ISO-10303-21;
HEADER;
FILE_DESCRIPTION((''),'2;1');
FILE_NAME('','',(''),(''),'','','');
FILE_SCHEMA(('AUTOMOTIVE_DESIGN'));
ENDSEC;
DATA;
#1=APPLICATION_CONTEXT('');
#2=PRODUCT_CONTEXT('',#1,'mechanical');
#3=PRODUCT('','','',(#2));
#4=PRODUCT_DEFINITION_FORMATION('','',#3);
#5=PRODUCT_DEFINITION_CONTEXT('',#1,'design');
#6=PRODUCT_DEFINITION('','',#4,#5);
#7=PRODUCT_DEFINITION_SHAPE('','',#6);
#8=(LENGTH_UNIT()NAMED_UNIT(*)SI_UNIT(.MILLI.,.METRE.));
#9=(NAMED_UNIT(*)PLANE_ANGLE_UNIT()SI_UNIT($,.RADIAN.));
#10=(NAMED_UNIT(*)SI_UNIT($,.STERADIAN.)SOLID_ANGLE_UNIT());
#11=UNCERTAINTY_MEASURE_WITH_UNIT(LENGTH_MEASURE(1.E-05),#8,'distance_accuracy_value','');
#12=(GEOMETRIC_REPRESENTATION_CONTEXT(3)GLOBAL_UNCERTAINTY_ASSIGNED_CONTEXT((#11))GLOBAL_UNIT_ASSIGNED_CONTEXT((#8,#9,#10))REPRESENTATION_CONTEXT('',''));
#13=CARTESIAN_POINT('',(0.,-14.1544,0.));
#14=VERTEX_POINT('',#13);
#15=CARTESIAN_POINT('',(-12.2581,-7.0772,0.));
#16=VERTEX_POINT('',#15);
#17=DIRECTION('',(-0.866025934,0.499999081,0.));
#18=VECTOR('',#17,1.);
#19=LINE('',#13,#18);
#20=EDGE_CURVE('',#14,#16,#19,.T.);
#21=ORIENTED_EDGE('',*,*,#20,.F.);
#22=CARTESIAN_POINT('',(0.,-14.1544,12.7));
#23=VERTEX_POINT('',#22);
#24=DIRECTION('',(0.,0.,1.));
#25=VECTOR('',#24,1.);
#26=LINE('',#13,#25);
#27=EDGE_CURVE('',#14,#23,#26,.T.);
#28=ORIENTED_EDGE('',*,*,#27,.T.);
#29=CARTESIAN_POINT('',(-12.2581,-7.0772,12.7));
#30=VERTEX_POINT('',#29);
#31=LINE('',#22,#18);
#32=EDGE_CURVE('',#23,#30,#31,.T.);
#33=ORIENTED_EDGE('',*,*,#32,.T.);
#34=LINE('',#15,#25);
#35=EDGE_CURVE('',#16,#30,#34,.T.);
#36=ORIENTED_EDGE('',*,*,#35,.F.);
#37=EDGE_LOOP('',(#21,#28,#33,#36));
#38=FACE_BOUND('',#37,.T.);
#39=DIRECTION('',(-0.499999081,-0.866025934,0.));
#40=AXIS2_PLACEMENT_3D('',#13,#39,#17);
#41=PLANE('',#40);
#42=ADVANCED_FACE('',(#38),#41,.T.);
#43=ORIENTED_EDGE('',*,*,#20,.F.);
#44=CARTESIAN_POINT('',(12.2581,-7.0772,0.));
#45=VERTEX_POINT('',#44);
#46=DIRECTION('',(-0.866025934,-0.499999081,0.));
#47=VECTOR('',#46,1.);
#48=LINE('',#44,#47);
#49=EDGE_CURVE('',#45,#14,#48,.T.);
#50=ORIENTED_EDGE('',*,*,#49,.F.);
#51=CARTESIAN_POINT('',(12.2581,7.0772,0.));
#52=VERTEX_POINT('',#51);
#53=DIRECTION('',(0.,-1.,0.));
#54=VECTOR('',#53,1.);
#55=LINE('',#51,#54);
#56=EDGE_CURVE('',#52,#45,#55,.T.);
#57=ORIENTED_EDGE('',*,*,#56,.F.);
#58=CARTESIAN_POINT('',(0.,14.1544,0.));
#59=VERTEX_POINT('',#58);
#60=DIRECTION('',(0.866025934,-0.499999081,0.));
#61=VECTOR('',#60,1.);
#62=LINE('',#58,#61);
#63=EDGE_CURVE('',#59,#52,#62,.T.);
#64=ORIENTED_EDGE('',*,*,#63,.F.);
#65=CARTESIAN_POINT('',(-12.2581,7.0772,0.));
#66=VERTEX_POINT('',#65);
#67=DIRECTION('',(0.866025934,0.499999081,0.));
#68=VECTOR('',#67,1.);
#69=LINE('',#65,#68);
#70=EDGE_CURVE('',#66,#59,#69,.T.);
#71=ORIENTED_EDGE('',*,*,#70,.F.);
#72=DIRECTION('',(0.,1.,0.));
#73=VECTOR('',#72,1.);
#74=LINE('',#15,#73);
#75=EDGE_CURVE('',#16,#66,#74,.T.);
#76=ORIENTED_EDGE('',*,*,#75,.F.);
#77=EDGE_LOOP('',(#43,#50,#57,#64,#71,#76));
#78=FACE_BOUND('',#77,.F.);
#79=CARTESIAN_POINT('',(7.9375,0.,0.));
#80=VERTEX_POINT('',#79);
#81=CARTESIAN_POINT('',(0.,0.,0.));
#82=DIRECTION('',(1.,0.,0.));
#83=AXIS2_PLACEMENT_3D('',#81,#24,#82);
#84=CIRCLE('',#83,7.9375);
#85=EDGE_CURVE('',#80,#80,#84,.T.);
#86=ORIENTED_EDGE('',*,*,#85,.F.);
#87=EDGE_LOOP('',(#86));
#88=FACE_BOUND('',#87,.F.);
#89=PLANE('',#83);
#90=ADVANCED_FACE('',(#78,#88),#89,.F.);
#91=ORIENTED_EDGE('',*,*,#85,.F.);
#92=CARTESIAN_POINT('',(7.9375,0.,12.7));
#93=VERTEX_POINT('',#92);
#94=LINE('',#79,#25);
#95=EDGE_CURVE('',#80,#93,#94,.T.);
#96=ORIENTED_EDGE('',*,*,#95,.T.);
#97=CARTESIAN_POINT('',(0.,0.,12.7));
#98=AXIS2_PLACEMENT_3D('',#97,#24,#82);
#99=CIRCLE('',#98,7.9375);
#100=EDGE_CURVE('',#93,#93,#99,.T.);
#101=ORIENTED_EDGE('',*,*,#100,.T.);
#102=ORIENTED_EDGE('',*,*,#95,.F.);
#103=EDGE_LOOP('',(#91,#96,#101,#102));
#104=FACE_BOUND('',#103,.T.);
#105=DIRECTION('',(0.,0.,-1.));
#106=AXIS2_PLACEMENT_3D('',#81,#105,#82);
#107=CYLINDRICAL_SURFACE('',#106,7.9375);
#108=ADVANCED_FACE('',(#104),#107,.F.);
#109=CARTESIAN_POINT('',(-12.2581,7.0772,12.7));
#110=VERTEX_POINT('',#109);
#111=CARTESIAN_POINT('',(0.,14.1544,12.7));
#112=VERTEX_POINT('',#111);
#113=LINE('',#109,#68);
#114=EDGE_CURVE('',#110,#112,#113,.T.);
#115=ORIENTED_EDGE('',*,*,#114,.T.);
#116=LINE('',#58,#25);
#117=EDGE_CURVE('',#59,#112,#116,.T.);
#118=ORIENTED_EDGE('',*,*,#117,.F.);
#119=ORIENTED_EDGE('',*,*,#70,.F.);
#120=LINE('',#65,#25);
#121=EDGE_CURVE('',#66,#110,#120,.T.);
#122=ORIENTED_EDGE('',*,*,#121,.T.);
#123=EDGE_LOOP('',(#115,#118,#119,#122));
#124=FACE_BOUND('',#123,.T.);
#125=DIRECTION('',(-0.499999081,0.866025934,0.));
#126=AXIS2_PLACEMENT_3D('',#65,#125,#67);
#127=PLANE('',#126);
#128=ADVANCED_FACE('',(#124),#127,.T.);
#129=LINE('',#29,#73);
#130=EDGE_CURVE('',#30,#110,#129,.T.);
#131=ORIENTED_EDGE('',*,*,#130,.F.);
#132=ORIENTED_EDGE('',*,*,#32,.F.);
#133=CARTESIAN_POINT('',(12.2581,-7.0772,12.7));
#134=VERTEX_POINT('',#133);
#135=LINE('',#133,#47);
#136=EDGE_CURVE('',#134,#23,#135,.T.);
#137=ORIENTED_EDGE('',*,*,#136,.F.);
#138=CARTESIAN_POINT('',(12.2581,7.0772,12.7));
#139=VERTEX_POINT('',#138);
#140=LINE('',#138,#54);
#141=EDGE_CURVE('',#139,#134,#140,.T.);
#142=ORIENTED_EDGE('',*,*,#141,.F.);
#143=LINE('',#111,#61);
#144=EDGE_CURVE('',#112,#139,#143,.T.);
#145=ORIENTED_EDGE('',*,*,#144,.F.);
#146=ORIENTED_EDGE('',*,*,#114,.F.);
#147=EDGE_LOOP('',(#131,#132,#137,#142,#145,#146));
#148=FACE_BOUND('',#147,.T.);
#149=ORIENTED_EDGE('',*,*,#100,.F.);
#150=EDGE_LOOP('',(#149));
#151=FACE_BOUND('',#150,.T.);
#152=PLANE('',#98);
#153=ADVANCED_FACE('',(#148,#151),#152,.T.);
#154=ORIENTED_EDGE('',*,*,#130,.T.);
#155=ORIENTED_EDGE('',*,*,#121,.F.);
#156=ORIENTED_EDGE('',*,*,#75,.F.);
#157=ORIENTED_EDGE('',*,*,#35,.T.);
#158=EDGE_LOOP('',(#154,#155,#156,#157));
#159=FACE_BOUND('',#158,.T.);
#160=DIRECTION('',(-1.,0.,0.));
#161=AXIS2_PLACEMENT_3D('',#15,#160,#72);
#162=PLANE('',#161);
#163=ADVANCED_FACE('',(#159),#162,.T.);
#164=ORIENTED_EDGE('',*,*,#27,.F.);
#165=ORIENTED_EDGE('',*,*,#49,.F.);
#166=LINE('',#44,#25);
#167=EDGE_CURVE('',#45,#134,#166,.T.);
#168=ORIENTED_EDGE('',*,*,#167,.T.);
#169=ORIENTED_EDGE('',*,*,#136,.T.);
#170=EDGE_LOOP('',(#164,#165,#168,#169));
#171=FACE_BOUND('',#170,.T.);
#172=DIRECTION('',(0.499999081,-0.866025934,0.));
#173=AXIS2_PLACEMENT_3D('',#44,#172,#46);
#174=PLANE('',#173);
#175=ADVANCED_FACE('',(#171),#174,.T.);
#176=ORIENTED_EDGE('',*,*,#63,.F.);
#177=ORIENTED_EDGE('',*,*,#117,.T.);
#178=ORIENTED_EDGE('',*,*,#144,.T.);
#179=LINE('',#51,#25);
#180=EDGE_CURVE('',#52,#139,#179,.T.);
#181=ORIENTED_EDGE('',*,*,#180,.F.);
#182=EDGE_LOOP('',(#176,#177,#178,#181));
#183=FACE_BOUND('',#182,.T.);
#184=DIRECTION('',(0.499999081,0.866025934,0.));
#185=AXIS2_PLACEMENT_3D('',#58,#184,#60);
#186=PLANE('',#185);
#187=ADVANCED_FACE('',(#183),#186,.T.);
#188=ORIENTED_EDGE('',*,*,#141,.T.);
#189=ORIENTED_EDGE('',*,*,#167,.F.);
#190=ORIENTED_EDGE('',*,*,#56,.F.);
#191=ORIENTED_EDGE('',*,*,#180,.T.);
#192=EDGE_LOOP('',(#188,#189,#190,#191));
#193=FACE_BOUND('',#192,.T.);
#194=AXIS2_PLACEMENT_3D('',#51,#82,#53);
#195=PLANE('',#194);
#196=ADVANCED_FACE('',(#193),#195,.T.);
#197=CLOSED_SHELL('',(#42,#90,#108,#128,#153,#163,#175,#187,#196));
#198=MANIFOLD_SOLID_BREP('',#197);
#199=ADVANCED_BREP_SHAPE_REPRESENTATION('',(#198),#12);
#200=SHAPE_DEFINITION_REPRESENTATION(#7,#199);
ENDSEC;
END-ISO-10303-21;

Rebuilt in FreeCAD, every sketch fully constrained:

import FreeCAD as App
import Part
import Sketcher
from FreeCAD import Vector
Q = App.Units.Quantity


def add_polygon(sketch, points):
    """Adds a closed chain of lines whose ends are joined by coincident constraints."""
    first, n = sketch.GeometryCount, len(points)
    for a, b in zip(points, points[1:] + points[:1]):
        sketch.addGeometry(Part.LineSegment(App.Vector(*a, 0), App.Vector(*b, 0)), False)
    for i in range(n):
        sketch.addConstraint(Sketcher.Constraint("Coincident", first + i, 2, first + (i + 1) % n, 1))

doc = App.newDocument("Part")
params = doc.addObject("Spreadsheet::Sheet", "Params")
for row, (alias, value) in enumerate([
    ("sketch1_diameter", "0.625 in"),
    ("pad1_length", "0.5 in"),
], start=1):
    params.set(f"A{row}", alias)
    params.set(f"B{row}", "=" + value)
    params.setAlias(f"B{row}", alias)

body = doc.addObject("PartDesign::Body", "Body")

# Sketch on XY plane
sketch1 = body.newObject("Sketcher::SketchObject", "Sketch")
sketch1.AttachmentSupport = (doc.getObject("XY_Plane"), [""])
sketch1.MapMode = "FlatFace"
add_polygon(sketch1, [(12, 7), (0, 14), (-12, 7), (-12, -7), (0, -14), (12, -7)])  # lines 0-5
sketch1.addGeometry(Part.Circle(Vector(0, 0, 0), Vector(0, 0, 1), 8), False)  # 6
sketch1.addConstraint([
    Sketcher.Constraint("Vertical", 2),
    Sketcher.Constraint("Vertical", 5),
    Sketcher.Constraint("Coincident", 6, 3, -1, 1),
    Sketcher.Constraint("Symmetric", 0, 2, 3, 2, -1, 1),
    Sketcher.Constraint("Symmetric", 1, 2, 4, 2, -1, 1),
    Sketcher.Constraint("PointOnObject", 0, 2, -2),
    Sketcher.Constraint("Parallel", 0, 3),
    Sketcher.Constraint("Horizontal", 2, 2, 4, 2),
    Sketcher.Constraint("Diameter", 6, Q("0.625 in")),
    Sketcher.Constraint("Angle", 0, Q("150 deg")),
    Sketcher.Constraint("DistanceY", 2, 2, 2, 1, Q("14.1544 mm")),
    Sketcher.Constraint("DistanceX", 1, 2, -1, 1, Q("0.4826 in")),
])
sketch1.setExpression("Constraints[14]", "Params.sketch1_diameter")
pad1 = body.newObject("PartDesign::Pad", "Pad")
pad1.Profile = sketch1
pad1.setExpression("Length", "Params.pad1_length")

doc.recompute()
